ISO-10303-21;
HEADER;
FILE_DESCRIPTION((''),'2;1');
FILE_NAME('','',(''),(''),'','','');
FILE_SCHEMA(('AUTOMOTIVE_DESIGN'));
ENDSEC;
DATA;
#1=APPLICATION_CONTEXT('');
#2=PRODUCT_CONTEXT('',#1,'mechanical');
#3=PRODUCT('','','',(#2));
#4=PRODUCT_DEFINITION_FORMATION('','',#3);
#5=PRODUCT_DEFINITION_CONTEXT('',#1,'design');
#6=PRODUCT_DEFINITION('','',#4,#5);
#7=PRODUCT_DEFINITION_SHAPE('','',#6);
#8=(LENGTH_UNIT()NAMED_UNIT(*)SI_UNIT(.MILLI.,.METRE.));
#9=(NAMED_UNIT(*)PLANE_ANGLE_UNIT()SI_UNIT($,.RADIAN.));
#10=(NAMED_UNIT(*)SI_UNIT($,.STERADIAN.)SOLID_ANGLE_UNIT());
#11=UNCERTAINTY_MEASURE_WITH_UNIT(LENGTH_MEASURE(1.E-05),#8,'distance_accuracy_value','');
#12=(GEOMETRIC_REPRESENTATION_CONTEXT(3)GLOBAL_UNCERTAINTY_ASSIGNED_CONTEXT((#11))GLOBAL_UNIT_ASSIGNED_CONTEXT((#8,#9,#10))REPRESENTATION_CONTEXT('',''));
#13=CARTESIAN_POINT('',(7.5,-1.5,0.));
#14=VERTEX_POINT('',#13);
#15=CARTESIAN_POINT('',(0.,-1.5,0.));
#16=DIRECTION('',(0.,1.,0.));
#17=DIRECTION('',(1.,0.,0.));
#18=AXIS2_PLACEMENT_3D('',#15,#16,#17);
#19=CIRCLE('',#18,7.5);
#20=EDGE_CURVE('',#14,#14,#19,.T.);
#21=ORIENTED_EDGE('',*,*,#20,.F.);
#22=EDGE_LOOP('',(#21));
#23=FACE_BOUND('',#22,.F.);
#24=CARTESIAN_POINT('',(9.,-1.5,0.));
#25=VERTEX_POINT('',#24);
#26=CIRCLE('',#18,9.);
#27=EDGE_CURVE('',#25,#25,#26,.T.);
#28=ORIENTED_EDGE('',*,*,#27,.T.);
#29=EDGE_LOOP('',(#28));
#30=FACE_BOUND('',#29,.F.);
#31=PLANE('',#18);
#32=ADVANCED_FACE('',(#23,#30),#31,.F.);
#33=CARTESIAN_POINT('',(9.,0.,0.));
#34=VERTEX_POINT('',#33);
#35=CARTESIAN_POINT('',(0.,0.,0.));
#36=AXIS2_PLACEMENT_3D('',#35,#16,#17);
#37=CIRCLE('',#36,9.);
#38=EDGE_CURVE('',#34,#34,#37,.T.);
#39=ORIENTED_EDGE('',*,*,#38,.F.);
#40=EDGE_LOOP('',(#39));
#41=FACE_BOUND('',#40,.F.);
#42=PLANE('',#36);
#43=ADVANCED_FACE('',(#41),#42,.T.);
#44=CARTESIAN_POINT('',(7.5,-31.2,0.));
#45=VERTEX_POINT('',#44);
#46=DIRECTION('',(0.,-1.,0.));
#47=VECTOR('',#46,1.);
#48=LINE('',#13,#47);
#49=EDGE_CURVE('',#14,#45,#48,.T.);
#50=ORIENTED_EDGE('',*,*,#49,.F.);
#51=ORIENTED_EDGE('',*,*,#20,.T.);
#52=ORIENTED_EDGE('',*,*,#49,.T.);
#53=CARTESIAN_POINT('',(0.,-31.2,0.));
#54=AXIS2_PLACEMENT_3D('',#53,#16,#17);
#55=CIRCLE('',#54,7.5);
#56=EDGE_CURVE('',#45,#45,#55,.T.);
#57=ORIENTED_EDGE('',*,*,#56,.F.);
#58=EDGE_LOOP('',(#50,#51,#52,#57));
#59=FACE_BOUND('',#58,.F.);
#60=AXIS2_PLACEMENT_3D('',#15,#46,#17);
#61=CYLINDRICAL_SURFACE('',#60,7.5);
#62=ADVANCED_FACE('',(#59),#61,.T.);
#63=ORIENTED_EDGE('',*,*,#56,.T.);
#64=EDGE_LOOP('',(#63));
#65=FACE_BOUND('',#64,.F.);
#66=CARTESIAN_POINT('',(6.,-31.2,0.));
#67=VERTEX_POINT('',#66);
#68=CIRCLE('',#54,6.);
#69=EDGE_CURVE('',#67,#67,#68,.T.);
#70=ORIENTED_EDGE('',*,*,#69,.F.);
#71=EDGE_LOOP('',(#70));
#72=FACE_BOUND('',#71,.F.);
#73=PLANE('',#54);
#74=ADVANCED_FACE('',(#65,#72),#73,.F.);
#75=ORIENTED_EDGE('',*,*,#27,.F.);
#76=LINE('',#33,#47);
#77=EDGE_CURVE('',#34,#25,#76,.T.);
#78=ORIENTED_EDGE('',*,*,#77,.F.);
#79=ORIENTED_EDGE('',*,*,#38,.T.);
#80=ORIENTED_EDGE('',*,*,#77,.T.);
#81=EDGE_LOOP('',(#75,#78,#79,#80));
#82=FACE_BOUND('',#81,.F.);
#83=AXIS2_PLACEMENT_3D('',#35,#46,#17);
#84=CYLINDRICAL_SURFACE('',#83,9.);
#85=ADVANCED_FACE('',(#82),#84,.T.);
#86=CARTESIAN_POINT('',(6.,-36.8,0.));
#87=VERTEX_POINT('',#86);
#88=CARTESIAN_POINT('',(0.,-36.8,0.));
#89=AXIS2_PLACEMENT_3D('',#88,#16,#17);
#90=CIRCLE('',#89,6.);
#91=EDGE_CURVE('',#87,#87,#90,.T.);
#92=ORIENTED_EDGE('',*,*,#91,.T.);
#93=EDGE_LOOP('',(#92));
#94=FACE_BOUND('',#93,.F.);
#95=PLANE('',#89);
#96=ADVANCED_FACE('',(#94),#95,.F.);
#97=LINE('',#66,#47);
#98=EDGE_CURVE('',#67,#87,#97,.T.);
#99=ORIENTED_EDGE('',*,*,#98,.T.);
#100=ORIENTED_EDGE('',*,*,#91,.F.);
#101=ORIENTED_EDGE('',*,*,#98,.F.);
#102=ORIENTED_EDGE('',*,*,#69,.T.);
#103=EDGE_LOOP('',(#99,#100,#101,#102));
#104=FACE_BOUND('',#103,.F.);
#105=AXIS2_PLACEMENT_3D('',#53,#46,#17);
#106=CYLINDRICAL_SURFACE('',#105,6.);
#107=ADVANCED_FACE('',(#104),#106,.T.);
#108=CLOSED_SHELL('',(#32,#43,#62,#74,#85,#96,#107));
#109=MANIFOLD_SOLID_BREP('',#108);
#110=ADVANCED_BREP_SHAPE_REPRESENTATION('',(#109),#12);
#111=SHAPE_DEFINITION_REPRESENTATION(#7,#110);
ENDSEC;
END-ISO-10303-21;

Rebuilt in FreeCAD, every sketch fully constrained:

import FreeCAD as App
import Part
import Sketcher
from FreeCAD import Vector
Q = App.Units.Quantity

doc = App.newDocument("Part")
body = doc.addObject("PartDesign::Body", "Body")

sketch1 = doc.addObject("Sketcher::SketchObject", "Sketch")
body.addObject(sketch1)
sketch1.AttachmentSupport = (doc.XY_Plane, [""])
sketch1.MapMode = "FlatFace"
sketch1.addGeometry([
    Part.LineSegment(Vector(9, 0, 0), Vector(0, 0, 0)),
    Part.LineSegment(Vector(0, 0, 0), Vector(0, -36.8, 0)),
    Part.LineSegment(Vector(0, -36.8, 0), Vector(6, -36.8, 0)),
    Part.LineSegment(Vector(6, -36.8, 0), Vector(6, -31.2, 0)),
    Part.LineSegment(Vector(6, -31.2, 0), Vector(7.5, -31.2, 0)),
    Part.LineSegment(Vector(7.5, -31.2, 0), Vector(7.5, -1.5, 0)),
    Part.LineSegment(Vector(7.5, -1.5, 0), Vector(9, -1.5, 0)),
    Part.LineSegment(Vector(9, -1.5, 0), Vector(9, 0, 0)),
], False)
sketch1.addConstraint([
    Sketcher.Constraint("Coincident", 0, 2, 1, 1),
    Sketcher.Constraint("Coincident", 1, 2, 2, 1),
    Sketcher.Constraint("Coincident", 2, 2, 3, 1),
    Sketcher.Constraint("Coincident", 3, 2, 4, 1),
    Sketcher.Constraint("Coincident", 4, 2, 5, 1),
    Sketcher.Constraint("Coincident", 5, 2, 6, 1),
    Sketcher.Constraint("Coincident", 6, 2, 7, 1),
    Sketcher.Constraint("Coincident", 7, 2, 0, 1),
    Sketcher.Constraint("Horizontal", 0),
    Sketcher.Constraint("Vertical", 1),
    Sketcher.Constraint("Horizontal", 2),
    Sketcher.Constraint("Vertical", 3),
    Sketcher.Constraint("Horizontal", 4),
    Sketcher.Constraint("Vertical", 5),
    Sketcher.Constraint("Horizontal", 6),
    Sketcher.Constraint("Vertical", 7),
    Sketcher.Constraint("Coincident", 0, 2, -1, 1),
    Sketcher.Constraint("Equal", 4, 6),
    Sketcher.Constraint("Equal", 6, 7),
    Sketcher.Constraint("DistanceX", 0, 2, 0, 1, Q("9 mm")),
    Sketcher.Constraint("DistanceX", 2, 1, 2, 2, Q("6 mm")),
    Sketcher.Constraint("DistanceY", 3, 1, 3, 2, Q("5.6 mm")),
    Sketcher.Constraint("DistanceY", 5, 1, 5, 2, Q("29.7 mm")),
])
revolution = doc.addObject("PartDesign::Revolution", "Revolution")
body.addObject(revolution)
revolution.Profile = sketch1
revolution.ReferenceAxis = (sketch1, ["V_Axis"])
revolution.Angle = 360

doc.recompute()
